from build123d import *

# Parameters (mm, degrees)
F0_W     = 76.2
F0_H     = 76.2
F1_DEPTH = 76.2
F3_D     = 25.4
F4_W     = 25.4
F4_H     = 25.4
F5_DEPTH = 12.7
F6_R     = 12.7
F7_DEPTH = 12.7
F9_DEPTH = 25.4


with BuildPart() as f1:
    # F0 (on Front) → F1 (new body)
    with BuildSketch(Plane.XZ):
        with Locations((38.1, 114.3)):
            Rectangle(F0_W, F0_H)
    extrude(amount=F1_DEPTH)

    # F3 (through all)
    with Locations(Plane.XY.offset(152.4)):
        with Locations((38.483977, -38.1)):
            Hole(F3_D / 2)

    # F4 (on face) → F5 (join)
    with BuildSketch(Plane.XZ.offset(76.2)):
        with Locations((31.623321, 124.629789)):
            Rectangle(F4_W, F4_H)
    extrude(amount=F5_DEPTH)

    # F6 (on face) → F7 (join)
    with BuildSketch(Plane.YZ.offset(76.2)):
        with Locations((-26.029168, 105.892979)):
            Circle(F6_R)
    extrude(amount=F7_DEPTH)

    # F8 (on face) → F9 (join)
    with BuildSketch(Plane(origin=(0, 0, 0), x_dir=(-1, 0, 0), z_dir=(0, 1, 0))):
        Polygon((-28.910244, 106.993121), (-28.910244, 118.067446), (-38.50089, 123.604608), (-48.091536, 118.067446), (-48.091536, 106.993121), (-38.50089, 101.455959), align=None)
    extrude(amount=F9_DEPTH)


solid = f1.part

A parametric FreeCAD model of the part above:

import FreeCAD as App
import Part
import Sketcher
Q = App.Units.Quantity


def add_polygon(sketch, points):
    """Adds a closed chain of lines whose ends are joined by coincident constraints."""
    first, n = sketch.GeometryCount, len(points)
    for a, b in zip(points, points[1:] + points[:1]):
        sketch.addGeometry(Part.LineSegment(App.Vector(*a, 0), App.Vector(*b, 0)), False)
    for i in range(n):
        sketch.addConstraint(Sketcher.Constraint("Coincident", first + i, 2, first + (i + 1) % n, 1))

doc = App.newDocument("Part")
body = doc.addObject("PartDesign::Body", "Body")

sketch1 = body.newObject("Sketcher::SketchObject", "Sketch")
sketch1.AttachmentSupport = (doc.getObject("XZ_Plane"), [""])
sketch1.MapMode = "FlatFace"
add_polygon(sketch1, [(0, 152), (0, 76), (76, 76), (76, 152)])
sketch1.addConstraint(Sketcher.Constraint("Vertical", 0))
sketch1.addConstraint(Sketcher.Constraint("Horizontal", 1))
sketch1.addConstraint(Sketcher.Constraint("Vertical", 2))
sketch1.addConstraint(Sketcher.Constraint("Horizontal", 3))
sketch1.addConstraint(Sketcher.Constraint("PointOnObject", 0, 2, -2))
sketch1.addConstraint(Sketcher.Constraint("Equal", 3, 0))
sketch1.addConstraint(Sketcher.Constraint("DistanceX", 1, 1, 1, 2, Q("3 in")))
sketch1.addConstraint(Sketcher.Constraint("DistanceY", -1, 1, 0, 2, Q("3 in")))
pad1 = body.newObject("PartDesign::Pad", "Pad")
pad1.Profile = sketch1
pad1.Length = Q("3 in")

sketch2 = body.newObject("Sketcher::SketchObject", "Sketch001")
sketch2.AttachmentSupport = (doc.getObject("XY_Plane"), [""])
sketch2.MapMode = "FlatFace"
sketch2.AttachmentOffset = App.Placement(App.Vector(0, 0, 6 * 25.4), App.Rotation())
sketch2.addGeometry(Part.Circle(App.Vector(38, -38, 0), App.Vector(0, 0, 1), 13), False)
sketch2.addConstraint(Sketcher.Constraint("Diameter", 0, Q("1 in")))
sketch2.addConstraint(Sketcher.Constraint("DistanceY", 0, 3, -1, 1, Q("1.5 in")))
sketch2.addConstraint(Sketcher.Constraint("DistanceX", -1, 1, 0, 3, 38.483977))
doc.recompute()
hole = body.newObject("PartDesign::Hole", "Hole")
hole.Profile = sketch2
hole.ThreadType = "None"
hole.Diameter = Q("1 in")
hole.DepthType = "ThroughAll"

sketch3 = body.newObject("Sketcher::SketchObject", "Sketch002")
sketch3.AttachmentSupport = (doc.getObject("XZ_Plane"), [""])
sketch3.MapMode = "FlatFace"
sketch3.AttachmentOffset = App.Placement(App.Vector(0, 0, 3 * 25.4), App.Rotation())
add_polygon(sketch3, [(19, 137), (19, 112), (44, 112), (44, 137)])
sketch3.addConstraint(Sketcher.Constraint("Vertical", 0))
sketch3.addConstraint(Sketcher.Constraint("Horizontal", 1))
sketch3.addConstraint(Sketcher.Constraint("Vertical", 2))
sketch3.addConstraint(Sketcher.Constraint("Horizontal", 3))
sketch3.addConstraint(Sketcher.Constraint("Equal", 3, 0))
sketch3.addConstraint(Sketcher.Constraint("DistanceX", 1, 1, 1, 2, Q("1 in")))
sketch3.addConstraint(Sketcher.Constraint("DistanceX", -1, 1, 0, 2, 18.923321))
sketch3.addConstraint(Sketcher.Constraint("DistanceY", -1, 1, 0, 2, 111.929789))
pad2 = body.newObject("PartDesign::Pad", "Pad001")
pad2.Profile = sketch3
pad2.Length = Q("0.5 in")

sketch4 = body.newObject("Sketcher::SketchObject", "Sketch003")
sketch4.AttachmentSupport = (doc.getObject("YZ_Plane"), [""])
sketch4.MapMode = "FlatFace"
sketch4.AttachmentOffset = App.Placement(App.Vector(0, 0, 3 * 25.4), App.Rotation())
sketch4.addGeometry(Part.Circle(App.Vector(-26, 106, 0), App.Vector(0, 0, 1), 13), False)
sketch4.addConstraint(Sketcher.Constraint("Diameter", 0, Q("1 in")))
sketch4.addConstraint(Sketcher.Constraint("DistanceY", -1, 1, 0, 3, 105.892979))
sketch4.addConstraint(Sketcher.Constraint("DistanceX", 0, 3, -1, 1, 26.029168))
pad3 = body.newObject("PartDesign::Pad", "Pad002")
pad3.Profile = sketch4
pad3.Length = Q("0.5 in")

sketch5 = body.newObject("Sketcher::SketchObject", "Sketch004")
sketch5.AttachmentSupport = (doc.getObject("XZ_Plane"), [""])
sketch5.MapMode = "FlatFace"
add_polygon(sketch5, [(29, 107), (29, 118), (39, 124), (48, 118), (48, 107), (39, 101)])
sketch5.addConstraint(Sketcher.Constraint("Vertical", 0))
sketch5.addConstraint(Sketcher.Constraint("Vertical", 3))
sketch5.addConstraint(Sketcher.Constraint("Parallel", 1, 4))
sketch5.addConstraint(Sketcher.Constraint("Parallel", 2, 5))
sketch5.addConstraint(Sketcher.Constraint("Horizontal", 0, 2, 2, 2))
sketch5.addConstraint(Sketcher.Constraint("Horizontal", 3, 2, 5, 2))
sketch5.addConstraint(Sketcher.Constraint("Vertical", 1, 2, 4, 2))
sketch5.addConstraint(Sketcher.Constraint("Angle", 1, Q("30 deg")))
sketch5.addConstraint(Sketcher.Constraint("DistanceY", 0, 1, 0, 2, 11.074325))
sketch5.addConstraint(Sketcher.Constraint("DistanceX", -1, 1, 1, 2, 38.50089))
sketch5.addConstraint(Sketcher.Constraint("DistanceY", -1, 1, 1, 2, 123.604608))
sketch5.addConstraint(Sketcher.Constraint("DistanceY", -1, 1, 3, 2, 106.993121))
pad4 = body.newObject("PartDesign::Pad", "Pad003")
pad4.Profile = sketch5
pad4.Length = Q("1 in")
pad4.Reversed = True

doc.recompute()
